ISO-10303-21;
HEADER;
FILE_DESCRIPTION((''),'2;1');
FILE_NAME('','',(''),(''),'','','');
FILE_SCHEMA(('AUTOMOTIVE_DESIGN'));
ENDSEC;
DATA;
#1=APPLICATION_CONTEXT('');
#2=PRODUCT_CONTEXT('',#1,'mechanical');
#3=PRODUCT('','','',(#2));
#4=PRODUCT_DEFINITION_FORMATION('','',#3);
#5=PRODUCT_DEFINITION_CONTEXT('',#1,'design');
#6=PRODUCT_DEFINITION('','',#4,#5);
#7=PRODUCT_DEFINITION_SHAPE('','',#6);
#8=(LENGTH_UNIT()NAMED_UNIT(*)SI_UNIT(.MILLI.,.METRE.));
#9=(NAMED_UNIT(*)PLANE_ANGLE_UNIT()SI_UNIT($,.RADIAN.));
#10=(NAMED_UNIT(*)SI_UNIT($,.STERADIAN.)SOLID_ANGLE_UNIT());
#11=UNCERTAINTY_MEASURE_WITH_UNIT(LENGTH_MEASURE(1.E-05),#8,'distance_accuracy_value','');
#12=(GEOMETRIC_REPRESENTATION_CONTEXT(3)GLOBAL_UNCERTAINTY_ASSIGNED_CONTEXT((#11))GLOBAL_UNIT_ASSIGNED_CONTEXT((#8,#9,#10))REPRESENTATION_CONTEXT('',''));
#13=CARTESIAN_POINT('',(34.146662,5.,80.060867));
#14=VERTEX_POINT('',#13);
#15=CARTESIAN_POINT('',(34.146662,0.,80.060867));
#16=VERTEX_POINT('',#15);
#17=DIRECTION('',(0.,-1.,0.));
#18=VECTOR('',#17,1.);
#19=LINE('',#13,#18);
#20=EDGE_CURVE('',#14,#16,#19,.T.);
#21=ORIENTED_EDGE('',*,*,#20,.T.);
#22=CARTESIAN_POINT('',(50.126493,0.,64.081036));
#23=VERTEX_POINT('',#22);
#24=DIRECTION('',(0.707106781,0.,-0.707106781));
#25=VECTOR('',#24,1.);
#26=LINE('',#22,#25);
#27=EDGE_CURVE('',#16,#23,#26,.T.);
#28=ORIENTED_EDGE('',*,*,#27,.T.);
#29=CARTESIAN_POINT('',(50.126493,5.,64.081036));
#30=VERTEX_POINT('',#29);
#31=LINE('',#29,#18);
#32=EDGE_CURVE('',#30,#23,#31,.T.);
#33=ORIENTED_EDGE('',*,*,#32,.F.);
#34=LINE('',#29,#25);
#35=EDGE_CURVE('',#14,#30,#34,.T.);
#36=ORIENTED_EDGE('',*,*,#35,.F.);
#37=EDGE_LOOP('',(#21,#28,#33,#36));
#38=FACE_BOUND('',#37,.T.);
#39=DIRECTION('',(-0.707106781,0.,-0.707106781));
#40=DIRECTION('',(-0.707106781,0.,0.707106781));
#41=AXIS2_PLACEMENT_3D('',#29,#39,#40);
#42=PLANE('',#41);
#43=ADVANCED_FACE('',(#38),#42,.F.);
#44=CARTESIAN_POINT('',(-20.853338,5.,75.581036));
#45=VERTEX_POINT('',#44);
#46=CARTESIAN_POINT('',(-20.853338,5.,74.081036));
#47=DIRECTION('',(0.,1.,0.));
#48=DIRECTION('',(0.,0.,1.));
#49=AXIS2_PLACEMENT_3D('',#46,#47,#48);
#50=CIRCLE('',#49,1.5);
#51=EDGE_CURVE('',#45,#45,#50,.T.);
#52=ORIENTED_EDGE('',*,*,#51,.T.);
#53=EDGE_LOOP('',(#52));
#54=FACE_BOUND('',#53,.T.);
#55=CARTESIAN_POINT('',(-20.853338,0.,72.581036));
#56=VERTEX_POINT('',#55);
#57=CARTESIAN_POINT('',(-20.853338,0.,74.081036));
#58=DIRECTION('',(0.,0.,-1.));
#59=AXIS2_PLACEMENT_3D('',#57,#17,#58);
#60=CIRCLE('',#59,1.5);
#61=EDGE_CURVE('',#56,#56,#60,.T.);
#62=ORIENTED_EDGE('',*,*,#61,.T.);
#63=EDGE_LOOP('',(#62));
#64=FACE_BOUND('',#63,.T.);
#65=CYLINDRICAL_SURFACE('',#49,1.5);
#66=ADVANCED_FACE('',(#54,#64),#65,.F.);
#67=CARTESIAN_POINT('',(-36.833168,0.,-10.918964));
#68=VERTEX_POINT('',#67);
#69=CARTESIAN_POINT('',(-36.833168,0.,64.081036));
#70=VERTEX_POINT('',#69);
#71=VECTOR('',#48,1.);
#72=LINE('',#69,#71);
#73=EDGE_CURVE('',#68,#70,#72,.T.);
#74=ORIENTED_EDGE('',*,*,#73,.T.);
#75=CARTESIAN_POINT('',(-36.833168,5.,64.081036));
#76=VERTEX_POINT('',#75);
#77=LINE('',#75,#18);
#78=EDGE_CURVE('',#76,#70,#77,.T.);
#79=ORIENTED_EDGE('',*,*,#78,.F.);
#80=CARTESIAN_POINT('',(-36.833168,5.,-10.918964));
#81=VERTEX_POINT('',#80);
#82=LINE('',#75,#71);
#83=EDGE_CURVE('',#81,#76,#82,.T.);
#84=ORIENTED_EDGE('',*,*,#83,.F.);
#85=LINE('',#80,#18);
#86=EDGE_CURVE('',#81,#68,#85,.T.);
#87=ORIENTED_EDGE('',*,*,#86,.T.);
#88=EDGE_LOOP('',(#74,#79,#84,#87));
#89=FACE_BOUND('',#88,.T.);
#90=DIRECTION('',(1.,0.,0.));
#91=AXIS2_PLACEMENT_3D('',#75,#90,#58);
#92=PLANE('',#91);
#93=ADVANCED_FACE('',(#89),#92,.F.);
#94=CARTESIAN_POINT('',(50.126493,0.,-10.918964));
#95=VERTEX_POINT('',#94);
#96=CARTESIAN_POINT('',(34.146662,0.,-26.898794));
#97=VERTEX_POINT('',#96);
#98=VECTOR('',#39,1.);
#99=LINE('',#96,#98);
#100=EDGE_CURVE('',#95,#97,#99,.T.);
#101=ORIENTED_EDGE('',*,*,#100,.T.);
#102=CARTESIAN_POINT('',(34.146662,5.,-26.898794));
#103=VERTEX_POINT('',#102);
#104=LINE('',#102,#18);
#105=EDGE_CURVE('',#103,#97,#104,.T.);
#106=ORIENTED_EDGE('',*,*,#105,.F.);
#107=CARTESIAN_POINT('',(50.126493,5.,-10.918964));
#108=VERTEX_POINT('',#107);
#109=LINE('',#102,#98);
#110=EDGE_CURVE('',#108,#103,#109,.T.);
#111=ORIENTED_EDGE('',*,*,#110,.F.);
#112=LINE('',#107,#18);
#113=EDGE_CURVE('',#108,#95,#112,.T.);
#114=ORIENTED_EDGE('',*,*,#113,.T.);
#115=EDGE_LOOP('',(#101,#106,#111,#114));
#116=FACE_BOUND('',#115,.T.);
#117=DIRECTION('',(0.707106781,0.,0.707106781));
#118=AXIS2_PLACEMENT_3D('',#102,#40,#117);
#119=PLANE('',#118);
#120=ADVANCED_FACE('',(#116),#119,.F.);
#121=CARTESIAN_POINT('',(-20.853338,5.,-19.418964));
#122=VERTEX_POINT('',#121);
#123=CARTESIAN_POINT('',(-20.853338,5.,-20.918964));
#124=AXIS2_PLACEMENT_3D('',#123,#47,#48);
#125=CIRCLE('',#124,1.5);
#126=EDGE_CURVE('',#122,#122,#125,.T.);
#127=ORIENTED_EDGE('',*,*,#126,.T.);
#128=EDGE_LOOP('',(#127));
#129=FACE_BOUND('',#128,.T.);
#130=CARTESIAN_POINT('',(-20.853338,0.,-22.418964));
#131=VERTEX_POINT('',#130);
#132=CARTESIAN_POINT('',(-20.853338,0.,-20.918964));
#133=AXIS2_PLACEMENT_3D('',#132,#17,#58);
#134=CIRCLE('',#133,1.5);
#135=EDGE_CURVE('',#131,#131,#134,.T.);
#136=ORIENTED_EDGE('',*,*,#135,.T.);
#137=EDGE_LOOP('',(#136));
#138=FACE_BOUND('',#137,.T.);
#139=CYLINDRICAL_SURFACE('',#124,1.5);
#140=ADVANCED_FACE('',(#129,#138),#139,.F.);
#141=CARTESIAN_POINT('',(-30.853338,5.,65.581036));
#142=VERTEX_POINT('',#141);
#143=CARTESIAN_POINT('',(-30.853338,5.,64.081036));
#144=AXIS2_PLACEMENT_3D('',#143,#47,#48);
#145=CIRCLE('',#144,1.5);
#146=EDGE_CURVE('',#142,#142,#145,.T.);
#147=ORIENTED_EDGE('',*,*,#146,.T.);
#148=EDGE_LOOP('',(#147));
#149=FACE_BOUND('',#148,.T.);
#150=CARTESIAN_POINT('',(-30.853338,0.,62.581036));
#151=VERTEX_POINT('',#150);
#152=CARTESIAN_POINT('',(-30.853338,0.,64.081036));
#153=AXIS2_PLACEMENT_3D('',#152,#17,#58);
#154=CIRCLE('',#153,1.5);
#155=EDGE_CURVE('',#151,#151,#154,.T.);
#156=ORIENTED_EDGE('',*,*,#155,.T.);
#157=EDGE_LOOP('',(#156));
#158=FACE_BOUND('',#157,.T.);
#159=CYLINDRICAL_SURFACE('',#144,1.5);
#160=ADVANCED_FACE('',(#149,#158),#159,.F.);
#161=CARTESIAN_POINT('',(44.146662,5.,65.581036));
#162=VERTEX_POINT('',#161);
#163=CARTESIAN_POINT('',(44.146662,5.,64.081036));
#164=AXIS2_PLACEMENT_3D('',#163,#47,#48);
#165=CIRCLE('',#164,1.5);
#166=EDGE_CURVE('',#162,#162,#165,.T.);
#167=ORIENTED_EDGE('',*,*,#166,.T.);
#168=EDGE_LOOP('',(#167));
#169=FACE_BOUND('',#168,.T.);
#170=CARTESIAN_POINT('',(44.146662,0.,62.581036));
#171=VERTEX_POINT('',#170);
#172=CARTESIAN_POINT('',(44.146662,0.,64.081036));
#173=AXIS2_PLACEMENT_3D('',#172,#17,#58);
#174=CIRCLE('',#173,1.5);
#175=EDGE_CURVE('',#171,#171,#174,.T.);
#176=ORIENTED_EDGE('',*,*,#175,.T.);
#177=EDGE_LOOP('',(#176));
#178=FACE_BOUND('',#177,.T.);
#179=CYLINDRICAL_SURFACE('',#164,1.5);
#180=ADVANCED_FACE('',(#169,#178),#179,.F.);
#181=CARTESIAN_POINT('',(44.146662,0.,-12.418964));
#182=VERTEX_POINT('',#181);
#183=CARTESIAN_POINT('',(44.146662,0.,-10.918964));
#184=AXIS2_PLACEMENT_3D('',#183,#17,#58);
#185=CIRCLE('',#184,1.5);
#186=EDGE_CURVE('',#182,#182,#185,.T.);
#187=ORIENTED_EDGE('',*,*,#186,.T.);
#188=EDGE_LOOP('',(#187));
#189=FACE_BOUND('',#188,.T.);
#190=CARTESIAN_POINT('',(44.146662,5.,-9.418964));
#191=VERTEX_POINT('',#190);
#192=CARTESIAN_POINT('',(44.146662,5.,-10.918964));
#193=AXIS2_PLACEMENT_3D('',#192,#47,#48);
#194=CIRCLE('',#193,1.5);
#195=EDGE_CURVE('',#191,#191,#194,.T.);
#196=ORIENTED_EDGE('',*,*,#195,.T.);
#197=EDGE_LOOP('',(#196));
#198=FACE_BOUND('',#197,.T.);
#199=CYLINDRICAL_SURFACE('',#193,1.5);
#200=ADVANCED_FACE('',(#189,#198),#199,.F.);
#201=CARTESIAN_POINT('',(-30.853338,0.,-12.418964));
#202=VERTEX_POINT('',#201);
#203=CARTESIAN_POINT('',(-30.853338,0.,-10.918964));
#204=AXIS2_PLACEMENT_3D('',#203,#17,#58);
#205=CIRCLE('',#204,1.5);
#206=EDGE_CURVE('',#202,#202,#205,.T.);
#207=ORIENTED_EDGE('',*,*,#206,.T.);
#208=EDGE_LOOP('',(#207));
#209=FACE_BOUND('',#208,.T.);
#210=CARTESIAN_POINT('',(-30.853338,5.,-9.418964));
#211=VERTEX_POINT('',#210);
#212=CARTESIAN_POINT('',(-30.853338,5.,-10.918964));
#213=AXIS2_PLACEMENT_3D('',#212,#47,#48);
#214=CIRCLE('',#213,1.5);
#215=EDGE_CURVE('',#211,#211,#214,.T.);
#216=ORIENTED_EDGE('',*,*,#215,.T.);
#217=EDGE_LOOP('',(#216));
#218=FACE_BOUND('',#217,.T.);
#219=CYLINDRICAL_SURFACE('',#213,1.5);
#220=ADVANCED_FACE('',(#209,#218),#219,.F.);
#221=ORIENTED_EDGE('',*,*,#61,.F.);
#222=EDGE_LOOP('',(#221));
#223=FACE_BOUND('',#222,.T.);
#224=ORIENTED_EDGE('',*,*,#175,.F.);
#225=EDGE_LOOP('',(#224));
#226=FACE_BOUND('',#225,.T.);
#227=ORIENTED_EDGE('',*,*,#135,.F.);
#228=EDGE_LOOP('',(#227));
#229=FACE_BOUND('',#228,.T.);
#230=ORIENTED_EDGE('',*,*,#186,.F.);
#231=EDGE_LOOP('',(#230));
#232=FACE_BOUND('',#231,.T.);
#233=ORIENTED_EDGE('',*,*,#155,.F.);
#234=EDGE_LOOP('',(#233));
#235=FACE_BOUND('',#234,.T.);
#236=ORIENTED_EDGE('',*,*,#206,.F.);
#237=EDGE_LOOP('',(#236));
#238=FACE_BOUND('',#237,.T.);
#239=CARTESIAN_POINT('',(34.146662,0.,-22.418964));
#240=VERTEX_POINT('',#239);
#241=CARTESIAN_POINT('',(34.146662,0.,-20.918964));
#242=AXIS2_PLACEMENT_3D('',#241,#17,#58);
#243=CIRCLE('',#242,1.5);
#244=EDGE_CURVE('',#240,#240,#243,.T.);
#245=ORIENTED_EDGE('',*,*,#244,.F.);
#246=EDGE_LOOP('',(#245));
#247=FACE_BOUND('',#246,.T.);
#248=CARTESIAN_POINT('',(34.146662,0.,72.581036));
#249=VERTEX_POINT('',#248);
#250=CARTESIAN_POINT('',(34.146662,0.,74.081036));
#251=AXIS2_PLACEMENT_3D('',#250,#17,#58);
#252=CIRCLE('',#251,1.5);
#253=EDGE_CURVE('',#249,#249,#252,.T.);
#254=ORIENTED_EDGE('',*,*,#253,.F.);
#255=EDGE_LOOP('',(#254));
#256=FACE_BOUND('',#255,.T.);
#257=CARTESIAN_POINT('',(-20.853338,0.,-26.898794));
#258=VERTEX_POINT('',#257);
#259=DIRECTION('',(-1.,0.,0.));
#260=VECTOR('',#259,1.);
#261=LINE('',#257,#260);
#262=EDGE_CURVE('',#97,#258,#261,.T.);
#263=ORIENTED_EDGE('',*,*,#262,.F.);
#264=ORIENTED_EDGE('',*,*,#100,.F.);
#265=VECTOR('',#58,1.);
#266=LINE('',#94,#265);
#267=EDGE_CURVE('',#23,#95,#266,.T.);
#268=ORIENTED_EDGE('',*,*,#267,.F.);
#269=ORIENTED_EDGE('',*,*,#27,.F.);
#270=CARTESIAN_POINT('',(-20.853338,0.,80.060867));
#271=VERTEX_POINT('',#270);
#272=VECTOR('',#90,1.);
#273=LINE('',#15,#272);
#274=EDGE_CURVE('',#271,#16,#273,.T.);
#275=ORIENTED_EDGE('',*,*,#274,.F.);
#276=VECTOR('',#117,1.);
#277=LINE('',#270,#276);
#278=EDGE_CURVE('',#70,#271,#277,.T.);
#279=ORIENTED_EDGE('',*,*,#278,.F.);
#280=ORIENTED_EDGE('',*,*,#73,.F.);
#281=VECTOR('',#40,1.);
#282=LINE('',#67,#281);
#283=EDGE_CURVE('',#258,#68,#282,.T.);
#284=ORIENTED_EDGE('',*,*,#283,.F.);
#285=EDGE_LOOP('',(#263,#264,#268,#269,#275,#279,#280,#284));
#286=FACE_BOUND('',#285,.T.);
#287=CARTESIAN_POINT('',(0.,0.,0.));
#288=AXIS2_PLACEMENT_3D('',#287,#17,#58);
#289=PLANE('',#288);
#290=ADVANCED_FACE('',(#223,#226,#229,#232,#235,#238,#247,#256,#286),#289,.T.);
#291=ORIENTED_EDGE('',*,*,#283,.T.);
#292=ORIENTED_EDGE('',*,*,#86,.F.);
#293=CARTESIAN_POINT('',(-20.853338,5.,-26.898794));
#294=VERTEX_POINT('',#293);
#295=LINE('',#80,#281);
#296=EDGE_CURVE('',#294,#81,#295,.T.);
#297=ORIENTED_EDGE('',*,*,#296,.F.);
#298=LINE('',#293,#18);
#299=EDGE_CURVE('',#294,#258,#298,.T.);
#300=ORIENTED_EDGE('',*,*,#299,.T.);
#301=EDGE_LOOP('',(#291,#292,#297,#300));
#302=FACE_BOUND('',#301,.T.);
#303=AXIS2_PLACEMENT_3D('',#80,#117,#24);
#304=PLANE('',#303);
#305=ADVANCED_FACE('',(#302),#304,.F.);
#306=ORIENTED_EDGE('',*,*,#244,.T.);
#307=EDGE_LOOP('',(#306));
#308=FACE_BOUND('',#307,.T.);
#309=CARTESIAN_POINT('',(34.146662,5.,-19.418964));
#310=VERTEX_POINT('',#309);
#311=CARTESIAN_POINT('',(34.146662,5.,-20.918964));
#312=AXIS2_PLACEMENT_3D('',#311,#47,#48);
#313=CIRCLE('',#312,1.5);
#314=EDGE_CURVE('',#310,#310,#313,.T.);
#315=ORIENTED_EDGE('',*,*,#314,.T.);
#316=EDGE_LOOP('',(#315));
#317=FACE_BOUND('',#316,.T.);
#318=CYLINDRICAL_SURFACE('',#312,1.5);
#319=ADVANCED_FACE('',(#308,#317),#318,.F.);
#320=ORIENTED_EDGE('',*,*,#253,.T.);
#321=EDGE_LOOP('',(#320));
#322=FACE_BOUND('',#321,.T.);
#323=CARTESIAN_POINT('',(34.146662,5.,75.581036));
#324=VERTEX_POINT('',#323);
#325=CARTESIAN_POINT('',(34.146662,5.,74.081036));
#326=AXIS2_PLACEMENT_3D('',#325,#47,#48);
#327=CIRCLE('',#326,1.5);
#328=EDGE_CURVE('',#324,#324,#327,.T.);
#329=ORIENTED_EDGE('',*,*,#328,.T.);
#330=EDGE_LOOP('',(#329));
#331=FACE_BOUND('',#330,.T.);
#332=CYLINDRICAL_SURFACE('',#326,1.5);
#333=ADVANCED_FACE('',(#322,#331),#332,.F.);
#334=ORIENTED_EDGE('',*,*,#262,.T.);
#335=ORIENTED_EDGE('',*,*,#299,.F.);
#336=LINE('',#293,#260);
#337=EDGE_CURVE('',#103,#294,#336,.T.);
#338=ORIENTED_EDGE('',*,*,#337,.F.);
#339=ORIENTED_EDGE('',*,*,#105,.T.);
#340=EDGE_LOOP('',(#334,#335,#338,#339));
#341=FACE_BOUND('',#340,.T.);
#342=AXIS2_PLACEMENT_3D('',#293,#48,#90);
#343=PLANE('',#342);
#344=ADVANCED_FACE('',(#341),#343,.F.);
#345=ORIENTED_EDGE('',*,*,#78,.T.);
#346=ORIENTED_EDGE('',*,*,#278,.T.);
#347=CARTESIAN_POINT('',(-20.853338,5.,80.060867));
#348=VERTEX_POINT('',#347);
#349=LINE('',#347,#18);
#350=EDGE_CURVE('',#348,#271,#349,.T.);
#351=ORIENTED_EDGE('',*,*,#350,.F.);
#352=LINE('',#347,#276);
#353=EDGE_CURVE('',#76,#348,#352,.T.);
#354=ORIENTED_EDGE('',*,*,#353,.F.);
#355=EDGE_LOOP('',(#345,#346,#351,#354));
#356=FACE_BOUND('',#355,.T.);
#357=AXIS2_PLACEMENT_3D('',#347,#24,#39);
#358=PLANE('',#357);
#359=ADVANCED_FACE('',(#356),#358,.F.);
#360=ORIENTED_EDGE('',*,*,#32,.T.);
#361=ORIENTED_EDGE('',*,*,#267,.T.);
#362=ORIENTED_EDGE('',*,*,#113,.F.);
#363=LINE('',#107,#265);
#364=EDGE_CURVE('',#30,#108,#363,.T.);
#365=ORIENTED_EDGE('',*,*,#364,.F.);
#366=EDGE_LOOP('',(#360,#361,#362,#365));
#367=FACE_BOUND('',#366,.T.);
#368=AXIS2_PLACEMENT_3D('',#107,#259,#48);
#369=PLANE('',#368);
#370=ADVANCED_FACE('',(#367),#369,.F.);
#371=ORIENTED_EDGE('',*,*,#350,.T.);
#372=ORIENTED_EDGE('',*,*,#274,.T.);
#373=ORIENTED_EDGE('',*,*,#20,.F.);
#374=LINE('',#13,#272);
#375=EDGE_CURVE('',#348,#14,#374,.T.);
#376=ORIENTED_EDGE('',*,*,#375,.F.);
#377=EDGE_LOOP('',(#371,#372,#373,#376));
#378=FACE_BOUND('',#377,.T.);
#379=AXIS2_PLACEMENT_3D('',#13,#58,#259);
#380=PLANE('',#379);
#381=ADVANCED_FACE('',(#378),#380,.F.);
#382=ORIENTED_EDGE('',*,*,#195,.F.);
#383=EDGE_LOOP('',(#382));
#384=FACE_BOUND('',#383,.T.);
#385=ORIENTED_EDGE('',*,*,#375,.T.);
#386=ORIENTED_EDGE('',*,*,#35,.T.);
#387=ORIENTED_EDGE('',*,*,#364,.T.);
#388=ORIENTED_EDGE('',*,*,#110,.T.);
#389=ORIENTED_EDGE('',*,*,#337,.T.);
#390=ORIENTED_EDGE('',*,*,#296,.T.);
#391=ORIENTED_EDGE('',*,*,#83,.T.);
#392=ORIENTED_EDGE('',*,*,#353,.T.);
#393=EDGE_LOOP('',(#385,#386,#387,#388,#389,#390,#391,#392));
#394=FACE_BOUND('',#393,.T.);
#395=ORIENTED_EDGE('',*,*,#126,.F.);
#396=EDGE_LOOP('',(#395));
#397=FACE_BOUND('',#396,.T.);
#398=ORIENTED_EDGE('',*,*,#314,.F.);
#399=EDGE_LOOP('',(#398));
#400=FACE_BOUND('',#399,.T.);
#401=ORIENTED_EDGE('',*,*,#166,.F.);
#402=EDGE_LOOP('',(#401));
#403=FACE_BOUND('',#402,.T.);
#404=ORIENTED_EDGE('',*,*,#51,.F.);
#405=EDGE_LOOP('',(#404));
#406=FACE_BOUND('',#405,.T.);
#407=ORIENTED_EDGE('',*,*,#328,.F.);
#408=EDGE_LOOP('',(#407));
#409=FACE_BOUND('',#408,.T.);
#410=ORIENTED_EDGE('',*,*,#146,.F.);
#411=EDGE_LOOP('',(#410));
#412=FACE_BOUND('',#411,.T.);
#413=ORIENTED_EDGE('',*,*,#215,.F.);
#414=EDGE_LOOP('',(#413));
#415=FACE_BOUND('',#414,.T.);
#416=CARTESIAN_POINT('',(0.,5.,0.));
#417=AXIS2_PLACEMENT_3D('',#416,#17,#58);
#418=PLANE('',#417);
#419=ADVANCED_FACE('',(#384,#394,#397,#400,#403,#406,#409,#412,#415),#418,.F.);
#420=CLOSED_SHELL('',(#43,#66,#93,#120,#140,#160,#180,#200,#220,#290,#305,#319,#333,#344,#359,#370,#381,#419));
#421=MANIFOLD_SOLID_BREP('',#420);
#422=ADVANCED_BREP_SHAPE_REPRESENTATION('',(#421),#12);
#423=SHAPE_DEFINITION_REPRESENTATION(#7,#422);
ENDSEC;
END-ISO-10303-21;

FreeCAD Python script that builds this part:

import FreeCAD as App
import Part
import Sketcher

V = App.Vector
Q = App.Units.Quantity


def add_polygon(sketch, points):
    """Adds a closed chain of lines whose ends are joined by coincident constraints."""
    first, n = sketch.GeometryCount, len(points)
    for a, b in zip(points, points[1:] + points[:1]):
        sketch.addGeometry(Part.LineSegment(App.Vector(*a, 0), App.Vector(*b, 0)), False)
    for i in range(n):
        sketch.addConstraint(Sketcher.Constraint("Coincident", first + i, 2, first + (i + 1) % n, 1))

doc = App.newDocument("Part")
body = doc.addObject("PartDesign::Body", "Body")

sketch1 = doc.addObject("Sketcher::SketchObject", "Sketch")
body.addObject(sketch1)
sketch1.AttachmentSupport = (doc.XZ_Plane, [""])
sketch1.MapMode = "FlatFace"
add_polygon(sketch1, [(-21, -27), (-37, -11), (-37, 64), (-21, 80), (34, 80), (50, 64), (50, -11), (34, -27)])
sketch1.addConstraint([
    Sketcher.Constraint("Vertical", 1),
    Sketcher.Constraint("Horizontal", 3),
    Sketcher.Constraint("Vertical", 5),
    Sketcher.Constraint("Horizontal", 7),
    Sketcher.Constraint("Perpendicular", 0, 2),
    Sketcher.Constraint("Perpendicular", 2, 4),
    Sketcher.Constraint("Perpendicular", 4, 6),
    Sketcher.Constraint("Horizontal", 1, 2, 4, 2),
    Sketcher.Constraint("Horizontal", 0, 2, 5, 2),
    Sketcher.Constraint("Vertical", 3, 2, 6, 2),
    Sketcher.Constraint("Vertical", 2, 2, 7, 2),
    Sketcher.Constraint("DistanceX", 3, 1, 3, 2, Q("55 mm")),
    Sketcher.Constraint("DistanceY", 1, 1, 1, 2, Q("75 mm")),
    Sketcher.Constraint("DistanceX", 0, 2, -1, 1, Q("36.833168 mm")),
    Sketcher.Constraint("DistanceX", 1, 2, 2, 2, Q("15.979831 mm")),
    Sketcher.Constraint("DistanceY", 0, 2, -1, 1, Q("10.918964 mm")),
])
pad1 = doc.addObject("PartDesign::Pad", "Pad")
body.addObject(pad1)
pad1.Profile = sketch1
pad1.Length = 5
pad1.Reversed = True

sketch2 = doc.addObject("Sketcher::SketchObject", "Sketch001")
body.addObject(sketch2)
sketch2.AttachmentSupport = (doc.XZ_Plane, [""])
sketch2.MapMode = "FlatFace"
sketch2.AttachmentOffset = App.Placement(V(0, 0, -5), App.Rotation())
sketch2.addGeometry([
    Part.Circle(V(-30.9, -10.9, 0), V(0, 0, 1), 1.5),
    Part.Circle(V(-20.9, -20.9, 0), V(0, 0, 1), 1.5),
], False)
sketch2.addConstraint([
    Sketcher.Constraint("Equal", 0, 1),
    Sketcher.Constraint("Diameter", 0, Q("3 mm")),
    Sketcher.Constraint("DistanceX", 0, 3, 1, 3, Q("10 mm")),
    Sketcher.Constraint("DistanceY", 1, 3, 0, 3, Q("10 mm")),
    Sketcher.Constraint("DistanceX", 0, 3, -1, 1, Q("30.853338 mm")),
    Sketcher.Constraint("DistanceY", 0, 3, -1, 1, Q("10.918964 mm")),
])
doc.recompute()
hole = doc.addObject("PartDesign::Hole", "Hole")
body.addObject(hole)
hole.Profile = sketch2
hole.ThreadType = "None"
hole.Diameter = 3
hole.DepthType = "Dimension"
hole.Depth = 5
hole.DrillPoint = "Flat"
hole.Reversed = True

sketch3 = doc.addObject("Sketcher::SketchObject", "Sketch002")
body.addObject(sketch3)
sketch3.AttachmentSupport = (doc.XZ_Plane, [""])
sketch3.MapMode = "FlatFace"
sketch3.AttachmentOffset = App.Placement(V(0, 0, -5), App.Rotation())
sketch3.addGeometry([
    Part.Circle(V(34.1, -20.9, 0), V(0, 0, 1), 1.5),
    Part.Circle(V(44.1, -10.9, 0), V(0, 0, 1), 1.5),
], False)
sketch3.addConstraint([
    Sketcher.Constraint("Equal", 0, 1),
    Sketcher.Constraint("Diameter", 0, Q("3 mm")),
    Sketcher.Constraint("DistanceX", 0, 3, 1, 3, Q("10 mm")),
    Sketcher.Constraint("DistanceY", 0, 3, 1, 3, Q("10 mm")),
    Sketcher.Constraint("DistanceX", -1, 1, 0, 3, Q("34.146662 mm")),
    Sketcher.Constraint("DistanceY", 0, 3, -1, 1, Q("20.918964 mm")),
])
doc.recompute()
hole2 = doc.addObject("PartDesign::Hole", "Hole001")
body.addObject(hole2)
hole2.Profile = sketch3
hole2.ThreadType = "None"
hole2.Diameter = 3
hole2.DepthType = "Dimension"
hole2.Depth = 5
hole2.DrillPoint = "Flat"
hole2.Reversed = True

sketch4 = doc.addObject("Sketcher::SketchObject", "Sketch003")
body.addObject(sketch4)
sketch4.AttachmentSupport = (doc.XZ_Plane, [""])
sketch4.MapMode = "FlatFace"
sketch4.AttachmentOffset = App.Placement(V(0, 0, -5), App.Rotation())
sketch4.addGeometry([
    Part.Circle(V(-30.9, 64.1, 0), V(0, 0, 1), 1.5),
    Part.Circle(V(-20.9, 74.1, 0), V(0, 0, 1), 1.5),
    Part.Circle(V(34.1, 74.1, 0), V(0, 0, 1), 1.5),
    Part.Circle(V(44.1, 64.1, 0), V(0, 0, 1), 1.5),
], False)
sketch4.addConstraint([
    Sketcher.Constraint("Equal", 0, 1),
    Sketcher.Constraint("Equal", 1, 2),
    Sketcher.Constraint("Equal", 2, 3),
    Sketcher.Constraint("Horizontal", 1, 3, 2, 3),
    Sketcher.Constraint("Horizontal", 0, 3, 3, 3),
    Sketcher.Constraint("Diameter", 0, Q("3 mm")),
    Sketcher.Constraint("DistanceX", 0, 3, 1, 3, Q("10 mm")),
    Sketcher.Constraint("DistanceY", 0, 3, 1, 3, Q("10 mm")),
    Sketcher.Constraint("DistanceX", 1, 3, 2, 3, Q("55 mm")),
    Sketcher.Constraint("DistanceX", 2, 3, 3, 3, Q("10 mm")),
    Sketcher.Constraint("DistanceX", 0, 3, -1, 1, Q("30.853338 mm")),
    Sketcher.Constraint("DistanceY", -1, 1, 0, 3, Q("64.081036 mm")),
])
doc.recompute()
hole3 = doc.addObject("PartDesign::Hole", "Hole002")
body.addObject(hole3)
hole3.Profile = sketch4
hole3.ThreadType = "None"
hole3.Diameter = 3
hole3.DepthType = "Dimension"
hole3.Depth = 5
hole3.DrillPoint = "Flat"
hole3.Reversed = True

doc.recompute()
